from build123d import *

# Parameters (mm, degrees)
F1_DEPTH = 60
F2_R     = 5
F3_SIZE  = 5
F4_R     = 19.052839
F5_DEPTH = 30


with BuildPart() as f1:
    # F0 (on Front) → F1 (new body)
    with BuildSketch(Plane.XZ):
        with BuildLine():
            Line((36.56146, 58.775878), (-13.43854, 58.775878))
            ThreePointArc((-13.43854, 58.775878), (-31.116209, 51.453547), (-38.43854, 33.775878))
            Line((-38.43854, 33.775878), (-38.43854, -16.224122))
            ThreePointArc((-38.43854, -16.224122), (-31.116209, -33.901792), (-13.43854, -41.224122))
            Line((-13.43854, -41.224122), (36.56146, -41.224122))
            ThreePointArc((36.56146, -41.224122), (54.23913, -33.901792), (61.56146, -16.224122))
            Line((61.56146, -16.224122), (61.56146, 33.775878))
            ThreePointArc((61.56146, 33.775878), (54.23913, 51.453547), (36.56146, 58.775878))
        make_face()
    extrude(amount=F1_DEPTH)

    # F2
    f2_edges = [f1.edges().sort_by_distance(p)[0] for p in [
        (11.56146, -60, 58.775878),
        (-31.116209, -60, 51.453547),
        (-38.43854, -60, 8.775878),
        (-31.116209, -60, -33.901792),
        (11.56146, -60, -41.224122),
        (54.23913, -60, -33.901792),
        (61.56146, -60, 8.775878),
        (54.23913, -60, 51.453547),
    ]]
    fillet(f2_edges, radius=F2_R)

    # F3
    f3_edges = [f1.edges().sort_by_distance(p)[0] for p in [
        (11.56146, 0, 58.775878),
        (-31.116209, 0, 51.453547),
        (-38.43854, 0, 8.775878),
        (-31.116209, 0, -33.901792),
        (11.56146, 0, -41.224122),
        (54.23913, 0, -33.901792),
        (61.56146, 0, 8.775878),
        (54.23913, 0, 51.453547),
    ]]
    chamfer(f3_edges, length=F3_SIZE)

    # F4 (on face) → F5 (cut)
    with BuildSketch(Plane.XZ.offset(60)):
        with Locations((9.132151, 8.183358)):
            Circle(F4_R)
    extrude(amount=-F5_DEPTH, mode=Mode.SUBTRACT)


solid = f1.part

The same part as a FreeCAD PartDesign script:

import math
import FreeCAD as App
import Part
import Sketcher
from FreeCAD import Vector
Q = App.Units.Quantity


def edges_at(feature, points):
    """Names of the edges that pass closest to the given points."""
    edges = feature.Shape.Edges
    near = lambda p: min(range(len(edges)), key=lambda i: edges[i].distToShape(Part.Vertex(*p))[0])
    return sorted({f"Edge{near(p) + 1}" for p in points})

doc = App.newDocument("Part")
body = doc.addObject("PartDesign::Body", "Body")

# Sketch on XZ plane
sketch1 = body.newObject("Sketcher::SketchObject", "Sketch")
sketch1.AttachmentSupport = (doc.getObject("XZ_Plane"), [""])
sketch1.MapMode = "FlatFace"
sketch1.addGeometry([
    Part.LineSegment(Vector(37, 59, 0), Vector(-13, 59, 0)),  # 0
    Part.ArcOfCircle(Part.Circle(Vector(-13, 34, 0), Vector(0, 0, 1), 25), math.radians(90), math.radians(180)),  # 1
    Part.LineSegment(Vector(-38, 34, 0), Vector(-38, -16, 0)),  # 2
    Part.ArcOfCircle(Part.Circle(Vector(-13, -16, 0), Vector(0, 0, 1), 25), math.radians(-180), math.radians(-90)),  # 3
    Part.LineSegment(Vector(-13, -41, 0), Vector(37, -41, 0)),  # 4
    Part.ArcOfCircle(Part.Circle(Vector(37, -16, 0), Vector(0, 0, 1), 25), math.radians(-90), math.radians(0)),  # 5
    Part.LineSegment(Vector(62, -16, 0), Vector(62, 34, 0)),  # 6
    Part.ArcOfCircle(Part.Circle(Vector(37, 34, 0), Vector(0, 0, 1), 25), math.radians(0), math.radians(90)),  # 7
], False)
sketch1.addConstraint([
    Sketcher.Constraint("Tangent", 0, 2, 1, 1),
    Sketcher.Constraint("Tangent", 1, 2, 2, 1),
    Sketcher.Constraint("Tangent", 2, 2, 3, 1),
    Sketcher.Constraint("Tangent", 3, 2, 4, 1),
    Sketcher.Constraint("Tangent", 4, 2, 5, 1),
    Sketcher.Constraint("Tangent", 5, 2, 6, 1),
    Sketcher.Constraint("Tangent", 6, 2, 7, 1),
    Sketcher.Constraint("Tangent", 7, 2, 0, 1),
    Sketcher.Constraint("Horizontal", 0),
    Sketcher.Constraint("Vertical", 2),
    Sketcher.Constraint("Horizontal", 4),
    Sketcher.Constraint("Vertical", 6),
    Sketcher.Constraint("Equal", 1, 3),
    Sketcher.Constraint("Equal", 3, 5),
    Sketcher.Constraint("Equal", 5, 7),
    Sketcher.Constraint("Equal", 4, 2),
    Sketcher.Constraint("Radius", 1, Q("25.000002 mm")),
    Sketcher.Constraint("DistanceX", 0, 2, 0, 1, Q("50 mm")),
    Sketcher.Constraint("DistanceX", 1, 3, -1, 1, Q("13.438538 mm")),
    Sketcher.Constraint("DistanceY", 3, 3, -1, 1, Q("16.224122 mm")),
])
pad1 = body.newObject("PartDesign::Pad", "Pad")
pad1.Profile = sketch1
pad1.Length = 60
doc.recompute()

fillet = body.newObject("PartDesign::Fillet", "Fillet")
fillet.Base = (pad1, edges_at(pad1, [
    (11.561, -60, 58.776),
    (-31.116, -60, 51.454),
    (-38.439, -60, 8.776),
    (-31.116, -60, -33.902),
    (11.561, -60, -41.224),
    (54.239, -60, -33.902),
    (61.561, -60, 8.776),
    (54.239, -60, 51.454),
]))
fillet.Radius = 5
doc.recompute()

chamfer = body.newObject("PartDesign::Chamfer", "Chamfer")
chamfer.Base = (fillet, edges_at(fillet, [
    (11.561, 0, 58.776),
    (-31.116, 0, 51.454),
    (-38.439, 0, 8.776),
    (-31.116, 0, -33.902),
    (11.561, 0, -41.224),
    (54.239, 0, -33.902),
    (61.561, 0, 8.776),
    (54.239, 0, 51.454),
]))
chamfer.Size = 5

# Sketch on XZ plane
sketch2 = body.newObject("Sketcher::SketchObject", "Sketch001")
sketch2.AttachmentSupport = (doc.getObject("XZ_Plane"), [""])
sketch2.MapMode = "FlatFace"
sketch2.AttachmentOffset = App.Placement(Vector(0, 0, 60), App.Rotation())
sketch2.addGeometry(Part.Circle(Vector(9, 8, 0), Vector(0, 0, 1), 19), False)
sketch2.addConstraint([
    Sketcher.Constraint("Diameter", 0, Q("38.105678 mm")),
    Sketcher.Constraint("DistanceX", -1, 1, 0, 3, Q("9.132151 mm")),
    Sketcher.Constraint("DistanceY", -1, 1, 0, 3, Q("8.183358 mm")),
])
pocket1 = body.newObject("PartDesign::Pocket", "Pocket")
pocket1.Profile = sketch2
pocket1.Length = 30

doc.recompute()
